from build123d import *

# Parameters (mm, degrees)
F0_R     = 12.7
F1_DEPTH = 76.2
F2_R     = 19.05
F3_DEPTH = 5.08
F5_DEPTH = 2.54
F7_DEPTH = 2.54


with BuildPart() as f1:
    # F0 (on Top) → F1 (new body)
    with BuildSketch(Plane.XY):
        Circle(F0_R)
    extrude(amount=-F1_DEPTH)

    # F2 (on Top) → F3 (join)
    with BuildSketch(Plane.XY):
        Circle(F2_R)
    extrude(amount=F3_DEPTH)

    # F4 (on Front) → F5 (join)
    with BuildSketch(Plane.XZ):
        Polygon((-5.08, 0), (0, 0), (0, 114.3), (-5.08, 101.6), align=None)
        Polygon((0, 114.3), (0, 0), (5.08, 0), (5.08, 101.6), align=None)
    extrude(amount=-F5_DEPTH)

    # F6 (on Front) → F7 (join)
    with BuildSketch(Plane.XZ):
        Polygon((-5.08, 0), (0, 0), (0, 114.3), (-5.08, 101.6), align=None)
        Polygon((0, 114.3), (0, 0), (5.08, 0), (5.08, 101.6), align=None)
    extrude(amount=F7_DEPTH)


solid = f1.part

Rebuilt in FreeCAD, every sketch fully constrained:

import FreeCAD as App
import Part
import Sketcher
from FreeCAD import Vector
Q = App.Units.Quantity


def add_polygon(sketch, points):
    """Adds a closed chain of lines whose ends are joined by coincident constraints."""
    first, n = sketch.GeometryCount, len(points)
    for a, b in zip(points, points[1:] + points[:1]):
        sketch.addGeometry(Part.LineSegment(App.Vector(*a, 0), App.Vector(*b, 0)), False)
    for i in range(n):
        sketch.addConstraint(Sketcher.Constraint("Coincident", first + i, 2, first + (i + 1) % n, 1))

doc = App.newDocument("Part")
body = doc.addObject("PartDesign::Body", "Body")

sketch1 = body.newObject("Sketcher::SketchObject", "Sketch")
sketch1.AttachmentSupport = (doc.getObject("XY_Plane"), [""])
sketch1.MapMode = "FlatFace"
sketch1.addGeometry(Part.Circle(Vector(0, 0, 0), Vector(0, 0, 1), 13), False)
sketch1.addConstraint([
    Sketcher.Constraint("Coincident", 0, 3, -1, 1),
    Sketcher.Constraint("Diameter", 0, Q("1 in")),
])
pad1 = body.newObject("PartDesign::Pad", "Pad")
pad1.Profile = sketch1
pad1.Length = Q("3 in")
pad1.Reversed = True

sketch2 = body.newObject("Sketcher::SketchObject", "Sketch001")
sketch2.AttachmentSupport = (doc.getObject("XY_Plane"), [""])
sketch2.MapMode = "FlatFace"
sketch2.addGeometry(Part.Circle(Vector(0, 0, 0), Vector(0, 0, 1), 19), False)
sketch2.addConstraint([
    Sketcher.Constraint("Coincident", 0, 3, -1, 1),
    Sketcher.Constraint("Diameter", 0, Q("1.5 in")),
])
pad2 = body.newObject("PartDesign::Pad", "Pad001")
pad2.Profile = sketch2
pad2.Length = Q("0.2 in")

sketch3 = body.newObject("Sketcher::SketchObject", "Sketch002")
sketch3.AttachmentSupport = (doc.getObject("XZ_Plane"), [""])
sketch3.MapMode = "FlatFace"
add_polygon(sketch3, [(-5, 0), (5, 0), (5, 102), (0, 114), (-5, 102)])
sketch3.addConstraint([
    Sketcher.Constraint("Horizontal", 0),
    Sketcher.Constraint("Vertical", 1),
    Sketcher.Constraint("Vertical", 4),
    Sketcher.Constraint("Symmetric", 0, 2, 4, 2, -1, 1),
    Sketcher.Constraint("PointOnObject", 2, 2, -2),
    Sketcher.Constraint("Horizontal", 1, 2, 3, 2),
    Sketcher.Constraint("DistanceY", 1, 1, 1, 2, Q("4 in")),
    Sketcher.Constraint("DistanceX", 0, 1, 0, 2, Q("0.4 in")),
    Sketcher.Constraint("DistanceY", -1, 1, 2, 2, Q("4.5 in")),
])
pad3 = body.newObject("PartDesign::Pad", "Pad002")
pad3.Profile = sketch3
pad3.Length = Q("0.1 in")
pad3.Reversed = True

sketch4 = body.newObject("Sketcher::SketchObject", "Sketch003")
sketch4.AttachmentSupport = (doc.getObject("XZ_Plane"), [""])
sketch4.MapMode = "FlatFace"
add_polygon(sketch4, [(-5, 0), (5, 0), (5, 102), (0, 114), (-5, 102)])
sketch4.addConstraint([
    Sketcher.Constraint("Horizontal", 0),
    Sketcher.Constraint("Vertical", 1),
    Sketcher.Constraint("Vertical", 4),
    Sketcher.Constraint("Symmetric", 0, 2, 4, 2, -1, 1),
    Sketcher.Constraint("PointOnObject", 2, 2, -2),
    Sketcher.Constraint("Horizontal", 1, 2, 3, 2),
    Sketcher.Constraint("DistanceY", 1, 1, 1, 2, Q("4 in")),
    Sketcher.Constraint("DistanceX", 0, 1, 0, 2, Q("0.4 in")),
    Sketcher.Constraint("DistanceY", -1, 1, 2, 2, Q("4.5 in")),
])
pad4 = body.newObject("PartDesign::Pad", "Pad003")
pad4.Profile = sketch4
pad4.Length = Q("0.1 in")

doc.recompute()
